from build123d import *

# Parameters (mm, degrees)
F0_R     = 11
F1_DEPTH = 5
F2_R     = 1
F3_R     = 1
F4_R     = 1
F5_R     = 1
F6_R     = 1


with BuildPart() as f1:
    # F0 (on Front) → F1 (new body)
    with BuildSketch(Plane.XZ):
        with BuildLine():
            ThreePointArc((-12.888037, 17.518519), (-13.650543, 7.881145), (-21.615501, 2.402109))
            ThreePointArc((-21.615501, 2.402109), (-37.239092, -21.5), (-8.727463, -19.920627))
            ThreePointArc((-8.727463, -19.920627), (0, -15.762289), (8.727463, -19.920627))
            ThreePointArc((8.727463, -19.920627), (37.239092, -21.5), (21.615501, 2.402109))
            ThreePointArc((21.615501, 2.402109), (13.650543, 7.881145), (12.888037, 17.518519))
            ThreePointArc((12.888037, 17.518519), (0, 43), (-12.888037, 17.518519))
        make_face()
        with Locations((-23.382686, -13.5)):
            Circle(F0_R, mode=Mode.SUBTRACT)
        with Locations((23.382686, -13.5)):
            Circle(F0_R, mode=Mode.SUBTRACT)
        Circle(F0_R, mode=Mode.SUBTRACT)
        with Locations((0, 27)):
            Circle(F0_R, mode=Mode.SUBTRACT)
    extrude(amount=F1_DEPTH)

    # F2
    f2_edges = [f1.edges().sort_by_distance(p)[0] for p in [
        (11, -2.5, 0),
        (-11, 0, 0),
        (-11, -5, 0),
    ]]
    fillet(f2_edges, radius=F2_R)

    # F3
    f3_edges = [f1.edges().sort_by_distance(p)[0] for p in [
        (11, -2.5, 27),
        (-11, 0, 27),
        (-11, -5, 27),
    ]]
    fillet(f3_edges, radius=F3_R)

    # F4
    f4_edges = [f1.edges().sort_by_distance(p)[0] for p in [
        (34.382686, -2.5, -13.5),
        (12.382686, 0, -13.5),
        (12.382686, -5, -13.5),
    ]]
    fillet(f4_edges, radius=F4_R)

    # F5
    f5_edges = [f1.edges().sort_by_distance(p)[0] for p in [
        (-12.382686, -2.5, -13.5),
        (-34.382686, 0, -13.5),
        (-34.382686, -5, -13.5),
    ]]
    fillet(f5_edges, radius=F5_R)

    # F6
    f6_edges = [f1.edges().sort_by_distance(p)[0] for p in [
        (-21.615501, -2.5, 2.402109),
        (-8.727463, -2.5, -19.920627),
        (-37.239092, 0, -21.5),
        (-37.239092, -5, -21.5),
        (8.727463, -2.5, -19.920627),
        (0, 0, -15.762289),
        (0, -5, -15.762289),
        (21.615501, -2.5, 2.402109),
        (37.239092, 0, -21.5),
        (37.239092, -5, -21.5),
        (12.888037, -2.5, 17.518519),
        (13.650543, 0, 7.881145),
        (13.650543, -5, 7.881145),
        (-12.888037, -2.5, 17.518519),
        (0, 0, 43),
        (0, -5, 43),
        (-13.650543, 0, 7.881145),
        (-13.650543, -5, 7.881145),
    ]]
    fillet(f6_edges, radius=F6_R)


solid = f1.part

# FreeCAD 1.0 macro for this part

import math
import FreeCAD as App
import Part
import Sketcher
from FreeCAD import Vector
Q = App.Units.Quantity


def edges_at(feature, points):
    """Names of the edges that pass closest to the given points."""
    edges = feature.Shape.Edges
    near = lambda p: min(range(len(edges)), key=lambda i: edges[i].distToShape(Part.Vertex(*p))[0])
    return sorted({f"Edge{near(p) + 1}" for p in points})

doc = App.newDocument("Part")
params = doc.addObject("Spreadsheet::Sheet", "Params")
for row, (alias, value) in enumerate([
    ("sketch1_diameter", "22 mm"),
    ("sketch1_radius", "16 mm"),
    ("pad1_length", "5 mm"),
    ("fillet_radius", "1 mm"),
    ("fillet2_radius", "1 mm"),
    ("fillet3_radius", "1 mm"),
    ("fillet4_radius", "1 mm"),
    ("fillet5_radius", "1 mm"),
], start=1):
    params.set(f"A{row}", alias)
    params.set(f"B{row}", "=" + value)
    params.setAlias(f"B{row}", alias)

body = doc.addObject("PartDesign::Body", "Body")

sketch1 = doc.addObject("Sketcher::SketchObject", "Sketch")
body.addObject(sketch1)
sketch1.AttachmentSupport = (doc.XZ_Plane, [""])
sketch1.MapMode = "FlatFace"
sketch1.addGeometry([
    Part.ArcOfCircle(Part.Circle(Vector(-23, 14, 0), Vector(0, 0, 1), 11), math.radians(-81), math.radians(21)),
    Part.ArcOfCircle(Part.Circle(Vector(-23, -13, 0), Vector(0, 0, 1), 16), math.radians(84), math.radians(336)),
    Part.ArcOfCircle(Part.Circle(Vector(0, -27, 0), Vector(0, 0, 1), 11), math.radians(39), math.radians(141)),
    Part.ArcOfCircle(Part.Circle(Vector(23, -13, 0), Vector(0, 0, 1), 16), math.radians(-156), math.radians(96)),
    Part.ArcOfCircle(Part.Circle(Vector(23, 14, 0), Vector(0, 0, 1), 11), math.radians(159), math.radians(261)),
    Part.ArcOfCircle(Part.Circle(Vector(0, 27, 0), Vector(0, 0, 1), 16), math.radians(-36), math.radians(216)),
    Part.Circle(Vector(-23, -14, 0), Vector(0, 0, 1), 11),
    Part.Circle(Vector(23, -14, 0), Vector(0, 0, 1), 11),
    Part.Circle(Vector(0, 0, 0), Vector(0, 0, 1), 11),
    Part.Circle(Vector(0, 27, 0), Vector(0, 0, 1), 11),
], False)
sketch1.addConstraint([
    Sketcher.Constraint("Coincident", 0, 1, 1, 1),
    Sketcher.Constraint("Coincident", 1, 2, 2, 2),
    Sketcher.Constraint("Coincident", 2, 1, 3, 1),
    Sketcher.Constraint("Coincident", 3, 2, 4, 2),
    Sketcher.Constraint("Coincident", 4, 1, 5, 1),
    Sketcher.Constraint("Coincident", 5, 2, 0, 2),
    Sketcher.Constraint("Coincident", 8, 3, -1, 1),
    Sketcher.Constraint("Coincident", 6, 3, 1, 3),
    Sketcher.Constraint("Coincident", 7, 3, 3, 3),
    Sketcher.Constraint("Coincident", 9, 3, 5, 3),
    Sketcher.Constraint("Equal", 0, 2),
    Sketcher.Constraint("Equal", 1, 3),
    Sketcher.Constraint("Equal", 2, 4),
    Sketcher.Constraint("Equal", 3, 5),
    Sketcher.Constraint("Equal", 6, 7),
    Sketcher.Constraint("Equal", 7, 8),
    Sketcher.Constraint("Equal", 8, 9),
    Sketcher.Constraint("Symmetric", 0, 3, 3, 3, -1, 1),
    Sketcher.Constraint("Symmetric", 1, 3, 4, 3, -1, 1),
    Sketcher.Constraint("Symmetric", 2, 3, 5, 3, -1, 1),
    Sketcher.Constraint("Symmetric", 1, 3, 3, 3, -2),
    Sketcher.Constraint("PointOnObject", 2, 3, -2),
    Sketcher.Constraint("Diameter", 6, Q("22 mm")),
    Sketcher.Constraint("Radius", 1, Q("16 mm")),
    Sketcher.Constraint("DistanceY", 2, 3, -1, 1, Q("26.999998 mm")),
    Sketcher.Constraint("DistanceY", 1, 3, 0, 3, Q("27 mm")),
    Sketcher.Constraint("Radius", 0, Q("11.237711 mm")),
    Sketcher.Constraint("DistanceX", 0, 1, -1, 1, Q("21.615501 mm")),
])
sketch1.setExpression("Constraints[22]", "Params.sketch1_diameter")
sketch1.setExpression("Constraints[23]", "Params.sketch1_radius")
pad1 = doc.addObject("PartDesign::Pad", "Pad")
body.addObject(pad1)
pad1.Profile = sketch1
pad1.setExpression("Length", "Params.pad1_length")
doc.recompute()

fillet = doc.addObject("PartDesign::Fillet", "Fillet")
body.addObject(fillet)
fillet.Base = (pad1, edges_at(pad1, [(11, -2.5, 0), (-11, 0, 0), (-11, -5, 0)]))
fillet.setExpression("Radius", "Params.fillet_radius")
doc.recompute()

fillet2 = doc.addObject("PartDesign::Fillet", "Fillet001")
body.addObject(fillet2)
fillet2.Base = (fillet, edges_at(fillet, [(11, -2.5, 27), (-11, 0, 27), (-11, -5, 27)]))
fillet2.setExpression("Radius", "Params.fillet2_radius")
doc.recompute()

fillet3 = doc.addObject("PartDesign::Fillet", "Fillet002")
body.addObject(fillet3)
fillet3.Base = (fillet2, edges_at(fillet2, [(34.383, -2.5, -13.5), (12.383, 0, -13.5), (12.383, -5, -13.5)]))
fillet3.setExpression("Radius", "Params.fillet3_radius")
doc.recompute()

fillet4 = doc.addObject("PartDesign::Fillet", "Fillet003")
body.addObject(fillet4)
fillet4.Base = (fillet3, edges_at(fillet3, [(-12.383, -2.5, -13.5), (-34.383, 0, -13.5), (-34.383, -5, -13.5)]))
fillet4.setExpression("Radius", "Params.fillet4_radius")
doc.recompute()

fillet5 = doc.addObject("PartDesign::Fillet", "Fillet004")
body.addObject(fillet5)
fillet5.Base = (fillet4, edges_at(fillet4, [
    (-21.616, -2.5, 2.402),
    (-8.727, -2.5, -19.921),
    (-37.239, 0, -21.5),
    (-37.239, -5, -21.5),
    (8.727, -2.5, -19.921),
    (0, 0, -15.762),
    (0, -5, -15.762),
    (21.616, -2.5, 2.402),
    (37.239, 0, -21.5),
    (37.239, -5, -21.5),
    (12.888, -2.5, 17.519),
    (13.651, 0, 7.881),
    (13.651, -5, 7.881),
    (-12.888, -2.5, 17.519),
    (0, 0, 43),
    (0, -5, 43),
    (-13.651, 0, 7.881),
    (-13.651, -5, 7.881),
]))
fillet5.setExpression("Radius", "Params.fillet5_radius")

doc.recompute()
